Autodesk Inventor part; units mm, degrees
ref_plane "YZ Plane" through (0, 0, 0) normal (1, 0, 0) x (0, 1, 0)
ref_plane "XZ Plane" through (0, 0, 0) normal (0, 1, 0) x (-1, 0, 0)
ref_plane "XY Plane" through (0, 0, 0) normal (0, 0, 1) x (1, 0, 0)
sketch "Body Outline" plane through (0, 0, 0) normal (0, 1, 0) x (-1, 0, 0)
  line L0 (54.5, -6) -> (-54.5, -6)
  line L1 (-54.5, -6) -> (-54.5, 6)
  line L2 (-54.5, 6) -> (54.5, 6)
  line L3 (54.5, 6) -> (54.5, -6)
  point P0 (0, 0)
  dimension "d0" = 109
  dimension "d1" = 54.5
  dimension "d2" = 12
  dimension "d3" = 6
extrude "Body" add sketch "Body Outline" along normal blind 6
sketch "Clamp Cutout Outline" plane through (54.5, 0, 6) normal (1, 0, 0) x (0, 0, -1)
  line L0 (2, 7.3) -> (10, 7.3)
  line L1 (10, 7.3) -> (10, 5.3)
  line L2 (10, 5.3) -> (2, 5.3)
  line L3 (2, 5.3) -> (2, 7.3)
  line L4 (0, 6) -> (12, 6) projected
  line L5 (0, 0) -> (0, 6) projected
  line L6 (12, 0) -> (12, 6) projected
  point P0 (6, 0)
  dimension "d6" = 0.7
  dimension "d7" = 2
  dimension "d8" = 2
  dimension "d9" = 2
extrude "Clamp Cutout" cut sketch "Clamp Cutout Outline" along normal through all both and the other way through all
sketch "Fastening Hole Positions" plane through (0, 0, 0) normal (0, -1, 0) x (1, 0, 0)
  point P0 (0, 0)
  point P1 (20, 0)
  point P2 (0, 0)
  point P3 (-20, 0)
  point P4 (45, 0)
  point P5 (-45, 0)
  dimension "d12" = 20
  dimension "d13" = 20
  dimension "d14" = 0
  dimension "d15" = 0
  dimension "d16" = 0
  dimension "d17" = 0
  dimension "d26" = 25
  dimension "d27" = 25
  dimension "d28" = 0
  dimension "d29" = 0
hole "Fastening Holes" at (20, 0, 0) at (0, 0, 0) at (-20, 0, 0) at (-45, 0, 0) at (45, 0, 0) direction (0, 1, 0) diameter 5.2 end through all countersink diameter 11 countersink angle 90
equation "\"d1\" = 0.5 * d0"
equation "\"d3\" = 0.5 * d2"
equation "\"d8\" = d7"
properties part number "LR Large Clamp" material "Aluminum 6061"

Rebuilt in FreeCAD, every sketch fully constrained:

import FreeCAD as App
import Part
import Sketcher

V = App.Vector

doc = App.newDocument("Part")
body = doc.addObject("PartDesign::Body", "Body")

# Sketch on XZ plane
sketch1 = doc.addObject("Sketcher::SketchObject", "Sketch")
body.addObject(sketch1)
sketch1.AttachmentSupport = (doc.XZ_Plane, [""])
sketch1.MapMode = "FlatFace"
sketch1.addGeometry(Part.LineSegment(V(54.5, -6, 0), V(-54.5, -6, 0)), False)
sketch1.addGeometry(Part.LineSegment(V(-54.5, -6, 0), V(-54.5, 6, 0)), False)
sketch1.addGeometry(Part.LineSegment(V(-54.5, 6, 0), V(54.5, 6, 0)), False)
sketch1.addGeometry(Part.LineSegment(V(54.5, 6, 0), V(54.5, -6, 0)), False)
sketch1.addConstraint(Sketcher.Constraint("Coincident", 0, 2, 1, 1))
sketch1.addConstraint(Sketcher.Constraint("Coincident", 1, 2, 2, 1))
sketch1.addConstraint(Sketcher.Constraint("Coincident", 2, 2, 3, 1))
sketch1.addConstraint(Sketcher.Constraint("Coincident", 3, 2, 0, 1))
sketch1.addConstraint(Sketcher.Constraint("Horizontal", 0))
sketch1.addConstraint(Sketcher.Constraint("Vertical", 1))
sketch1.addConstraint(Sketcher.Constraint("Horizontal", 2))
sketch1.addConstraint(Sketcher.Constraint("Vertical", 3))
sketch1.addConstraint(Sketcher.Constraint("Symmetric", 0, 2, 2, 2, -1, 1))
sketch1.addConstraint(Sketcher.Constraint("DistanceX", 0, 2, 0, 1, 109.0))
sketch1.addConstraint(Sketcher.Constraint("DistanceY", 1, 1, 1, 2, 12.0))
pad1 = doc.addObject("PartDesign::Pad", "Pad")
body.addObject(pad1)
pad1.Profile = sketch1
pad1.Length = 6
pad1.Reversed = True

# Sketch on YZ plane
sketch2 = doc.addObject("Sketcher::SketchObject", "Sketch001")
body.addObject(sketch2)
sketch2.AttachmentSupport = (doc.YZ_Plane, [""])
sketch2.MapMode = "FlatFace"
sketch2.AttachmentOffset = App.Placement(V(0, 0, 54.5), App.Rotation())
sketch2.addGeometry(Part.LineSegment(V(7.3, -4, 0), V(7.3, 4, 0)), False)
sketch2.addGeometry(Part.LineSegment(V(7.3, 4, 0), V(5.3, 4, 0)), False)
sketch2.addGeometry(Part.LineSegment(V(5.3, 4, 0), V(5.3, -4, 0)), False)
sketch2.addGeometry(Part.LineSegment(V(5.3, -4, 0), V(7.3, -4, 0)), False)
sketch2.addConstraint(Sketcher.Constraint("Coincident", 0, 2, 1, 1))
sketch2.addConstraint(Sketcher.Constraint("Coincident", 1, 2, 2, 1))
sketch2.addConstraint(Sketcher.Constraint("Coincident", 2, 2, 3, 1))
sketch2.addConstraint(Sketcher.Constraint("Coincident", 3, 2, 0, 1))
sketch2.addConstraint(Sketcher.Constraint("Vertical", 0))
sketch2.addConstraint(Sketcher.Constraint("Horizontal", 1))
sketch2.addConstraint(Sketcher.Constraint("Vertical", 2))
sketch2.addConstraint(Sketcher.Constraint("Horizontal", 3))
sketch2.addConstraint(Sketcher.Constraint("DistanceX", 1, 2, 1, 1, 2.0))
sketch2.addConstraint(Sketcher.Constraint("DistanceY", 0, 1, 0, 2, 8.0))
sketch2.addConstraint(Sketcher.Constraint("DistanceY", -1, 1, 0, 2, 4.0))
sketch2.addConstraint(Sketcher.Constraint("DistanceX", -1, 1, 0, 2, 7.3))
pocket1 = doc.addObject("PartDesign::Pocket", "Pocket")
body.addObject(pocket1)
pocket1.Profile = sketch2
pocket1.Type = "ThroughAll"
pocket1.Midplane = True

# Sketch on XZ plane
sketch3 = doc.addObject("Sketcher::SketchObject", "Sketch002")
body.addObject(sketch3)
sketch3.AttachmentSupport = (doc.XZ_Plane, [""])
sketch3.MapMode = "FlatFace"
sketch3.addGeometry(Part.Circle(V(20, 0, 0), V(0, 0, 1), 2.6), False)
sketch3.addGeometry(Part.Circle(V(0, 0, 0), V(0, 0, 1), 2.6), False)
sketch3.addGeometry(Part.Circle(V(-20, 0, 0), V(0, 0, 1), 2.6), False)
sketch3.addGeometry(Part.Circle(V(-45, 0, 0), V(0, 0, 1), 2.6), False)
sketch3.addGeometry(Part.Circle(V(45, 0, 0), V(0, 0, 1), 2.6), False)
sketch3.addConstraint(Sketcher.Constraint("Coincident", 1, 3, -1, 1))
sketch3.addConstraint(Sketcher.Constraint("Equal", 0, 1))
sketch3.addConstraint(Sketcher.Constraint("Equal", 1, 2))
sketch3.addConstraint(Sketcher.Constraint("Equal", 2, 3))
sketch3.addConstraint(Sketcher.Constraint("Equal", 3, 4))
sketch3.addConstraint(Sketcher.Constraint("Symmetric", 0, 3, 2, 3, -1, 1))
sketch3.addConstraint(Sketcher.Constraint("Symmetric", 3, 3, 4, 3, -1, 1))
sketch3.addConstraint(Sketcher.Constraint("PointOnObject", 0, 3, -1))
sketch3.addConstraint(Sketcher.Constraint("PointOnObject", 3, 3, -1))
sketch3.addConstraint(Sketcher.Constraint("Diameter", 0, 5.2))
sketch3.addConstraint(Sketcher.Constraint("DistanceX", -1, 1, 0, 3, 20.0))
sketch3.addConstraint(Sketcher.Constraint("DistanceX", 3, 3, -1, 1, 45.0))
doc.recompute()
hole = doc.addObject("PartDesign::Hole", "Hole")
body.addObject(hole)
hole.Profile = sketch3
hole.ThreadType = "None"
hole.Diameter = 5.2
hole.DepthType = "ThroughAll"
hole.HoleCutType = "Countersink"
hole.HoleCutDiameter = 11
hole.HoleCutCountersinkAngle = 90

doc.recompute()
